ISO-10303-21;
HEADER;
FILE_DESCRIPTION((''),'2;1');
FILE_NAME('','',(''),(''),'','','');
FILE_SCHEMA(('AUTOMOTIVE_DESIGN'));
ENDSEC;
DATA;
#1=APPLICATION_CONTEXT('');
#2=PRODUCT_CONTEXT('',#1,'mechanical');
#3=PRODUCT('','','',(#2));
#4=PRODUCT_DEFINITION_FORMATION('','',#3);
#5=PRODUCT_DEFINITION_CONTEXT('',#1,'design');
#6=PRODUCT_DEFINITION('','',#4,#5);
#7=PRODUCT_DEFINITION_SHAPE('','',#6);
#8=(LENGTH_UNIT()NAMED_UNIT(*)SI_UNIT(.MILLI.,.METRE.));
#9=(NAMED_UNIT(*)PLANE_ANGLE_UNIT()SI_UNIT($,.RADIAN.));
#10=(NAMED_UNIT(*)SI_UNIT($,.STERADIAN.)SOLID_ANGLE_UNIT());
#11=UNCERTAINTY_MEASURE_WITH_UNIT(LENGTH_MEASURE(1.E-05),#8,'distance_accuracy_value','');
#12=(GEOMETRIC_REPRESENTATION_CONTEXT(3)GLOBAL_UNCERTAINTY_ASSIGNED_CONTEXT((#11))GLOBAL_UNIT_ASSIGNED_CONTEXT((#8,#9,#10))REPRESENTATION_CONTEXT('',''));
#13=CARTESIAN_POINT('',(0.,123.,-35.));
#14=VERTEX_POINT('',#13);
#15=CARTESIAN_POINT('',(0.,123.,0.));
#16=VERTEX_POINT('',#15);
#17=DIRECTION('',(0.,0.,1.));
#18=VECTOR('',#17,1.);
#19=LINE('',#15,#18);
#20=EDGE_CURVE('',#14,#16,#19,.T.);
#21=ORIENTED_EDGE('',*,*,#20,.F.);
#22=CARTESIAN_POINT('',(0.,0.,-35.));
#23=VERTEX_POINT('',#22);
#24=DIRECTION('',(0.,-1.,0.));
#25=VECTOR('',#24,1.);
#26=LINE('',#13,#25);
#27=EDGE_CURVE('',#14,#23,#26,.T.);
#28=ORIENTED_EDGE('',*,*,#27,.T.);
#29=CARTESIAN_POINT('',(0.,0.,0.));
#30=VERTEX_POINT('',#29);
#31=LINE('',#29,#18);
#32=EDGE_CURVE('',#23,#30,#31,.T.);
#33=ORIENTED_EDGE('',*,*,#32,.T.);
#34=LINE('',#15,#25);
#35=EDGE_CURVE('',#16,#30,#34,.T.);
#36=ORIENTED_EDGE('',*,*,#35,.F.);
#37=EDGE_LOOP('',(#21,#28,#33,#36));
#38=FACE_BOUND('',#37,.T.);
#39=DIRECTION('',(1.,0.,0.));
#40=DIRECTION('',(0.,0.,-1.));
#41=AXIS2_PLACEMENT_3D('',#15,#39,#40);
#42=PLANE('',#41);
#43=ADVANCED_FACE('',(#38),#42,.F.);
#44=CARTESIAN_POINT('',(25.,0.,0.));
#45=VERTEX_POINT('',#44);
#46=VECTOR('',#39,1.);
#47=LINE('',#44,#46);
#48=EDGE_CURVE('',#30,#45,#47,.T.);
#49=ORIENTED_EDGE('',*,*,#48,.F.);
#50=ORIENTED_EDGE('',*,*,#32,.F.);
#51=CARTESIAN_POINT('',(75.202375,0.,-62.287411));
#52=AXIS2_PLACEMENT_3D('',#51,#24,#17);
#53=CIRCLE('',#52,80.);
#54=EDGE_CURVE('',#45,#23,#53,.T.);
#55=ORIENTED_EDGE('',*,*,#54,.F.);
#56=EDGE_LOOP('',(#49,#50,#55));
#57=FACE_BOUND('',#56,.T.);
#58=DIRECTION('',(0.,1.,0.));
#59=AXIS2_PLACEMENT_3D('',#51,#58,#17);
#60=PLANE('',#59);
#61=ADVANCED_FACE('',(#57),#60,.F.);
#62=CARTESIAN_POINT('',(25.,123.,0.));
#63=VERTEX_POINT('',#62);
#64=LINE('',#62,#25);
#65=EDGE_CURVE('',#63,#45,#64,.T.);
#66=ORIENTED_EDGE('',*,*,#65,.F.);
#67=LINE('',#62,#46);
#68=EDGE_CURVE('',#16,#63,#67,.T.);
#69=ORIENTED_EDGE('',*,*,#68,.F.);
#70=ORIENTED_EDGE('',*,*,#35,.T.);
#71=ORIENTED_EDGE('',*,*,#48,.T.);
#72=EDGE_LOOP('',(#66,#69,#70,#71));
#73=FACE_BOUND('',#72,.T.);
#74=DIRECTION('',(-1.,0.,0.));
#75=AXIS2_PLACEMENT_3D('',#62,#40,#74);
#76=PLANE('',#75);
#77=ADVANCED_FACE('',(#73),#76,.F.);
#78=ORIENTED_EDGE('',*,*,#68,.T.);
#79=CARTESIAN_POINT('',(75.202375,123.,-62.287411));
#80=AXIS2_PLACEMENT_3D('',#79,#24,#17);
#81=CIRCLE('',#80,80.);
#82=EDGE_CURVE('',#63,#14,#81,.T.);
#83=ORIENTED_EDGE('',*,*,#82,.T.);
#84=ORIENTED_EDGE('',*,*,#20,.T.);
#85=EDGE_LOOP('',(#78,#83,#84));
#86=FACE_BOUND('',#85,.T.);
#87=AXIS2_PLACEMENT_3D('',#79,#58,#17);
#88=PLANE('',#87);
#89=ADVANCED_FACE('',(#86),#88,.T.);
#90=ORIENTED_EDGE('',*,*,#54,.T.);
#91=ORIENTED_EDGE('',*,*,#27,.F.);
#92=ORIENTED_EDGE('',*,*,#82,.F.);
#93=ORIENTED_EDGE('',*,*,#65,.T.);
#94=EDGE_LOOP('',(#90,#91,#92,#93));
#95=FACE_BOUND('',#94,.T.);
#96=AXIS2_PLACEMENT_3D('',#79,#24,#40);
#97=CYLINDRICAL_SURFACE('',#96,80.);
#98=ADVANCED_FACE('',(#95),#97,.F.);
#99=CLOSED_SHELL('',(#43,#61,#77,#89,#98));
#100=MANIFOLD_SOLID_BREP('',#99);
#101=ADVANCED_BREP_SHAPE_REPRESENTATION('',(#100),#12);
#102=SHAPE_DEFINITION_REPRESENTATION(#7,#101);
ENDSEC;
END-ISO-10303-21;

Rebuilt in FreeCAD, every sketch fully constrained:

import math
import FreeCAD as App
import Part
import Sketcher
from FreeCAD import Vector
Q = App.Units.Quantity

doc = App.newDocument("Part")
body = doc.addObject("PartDesign::Body", "Body")

sketch1 = body.newObject("Sketcher::SketchObject", "Sketch")
sketch1.AttachmentSupport = (doc.getObject("XZ_Plane"), [""])
sketch1.MapMode = "FlatFace"
sketch1.addGeometry([
    Part.LineSegment(Vector(0, -35, 0), Vector(0, 0, 0)),
    Part.LineSegment(Vector(0, 0, 0), Vector(25, 0, 0)),
    Part.ArcOfCircle(Part.Circle(Vector(75, -62, 0), Vector(0, 0, 1), 80), math.radians(129), math.radians(160)),
], False)
sketch1.addConstraint([
    Sketcher.Constraint("Coincident", 0, 2, 1, 1),
    Sketcher.Constraint("Coincident", 1, 2, 2, 1),
    Sketcher.Constraint("Coincident", 2, 2, 0, 1),
    Sketcher.Constraint("Vertical", 0),
    Sketcher.Constraint("Horizontal", 1),
    Sketcher.Constraint("Coincident", 0, 2, -1, 1),
    Sketcher.Constraint("Radius", 2, Q("80 mm")),
    Sketcher.Constraint("DistanceX", 1, 1, 1, 2, Q("25 mm")),
    Sketcher.Constraint("DistanceY", 0, 1, 0, 2, Q("35 mm")),
])
pad1 = body.newObject("PartDesign::Pad", "Pad")
pad1.Profile = sketch1
pad1.Length = 123
pad1.Reversed = True

doc.recompute()
